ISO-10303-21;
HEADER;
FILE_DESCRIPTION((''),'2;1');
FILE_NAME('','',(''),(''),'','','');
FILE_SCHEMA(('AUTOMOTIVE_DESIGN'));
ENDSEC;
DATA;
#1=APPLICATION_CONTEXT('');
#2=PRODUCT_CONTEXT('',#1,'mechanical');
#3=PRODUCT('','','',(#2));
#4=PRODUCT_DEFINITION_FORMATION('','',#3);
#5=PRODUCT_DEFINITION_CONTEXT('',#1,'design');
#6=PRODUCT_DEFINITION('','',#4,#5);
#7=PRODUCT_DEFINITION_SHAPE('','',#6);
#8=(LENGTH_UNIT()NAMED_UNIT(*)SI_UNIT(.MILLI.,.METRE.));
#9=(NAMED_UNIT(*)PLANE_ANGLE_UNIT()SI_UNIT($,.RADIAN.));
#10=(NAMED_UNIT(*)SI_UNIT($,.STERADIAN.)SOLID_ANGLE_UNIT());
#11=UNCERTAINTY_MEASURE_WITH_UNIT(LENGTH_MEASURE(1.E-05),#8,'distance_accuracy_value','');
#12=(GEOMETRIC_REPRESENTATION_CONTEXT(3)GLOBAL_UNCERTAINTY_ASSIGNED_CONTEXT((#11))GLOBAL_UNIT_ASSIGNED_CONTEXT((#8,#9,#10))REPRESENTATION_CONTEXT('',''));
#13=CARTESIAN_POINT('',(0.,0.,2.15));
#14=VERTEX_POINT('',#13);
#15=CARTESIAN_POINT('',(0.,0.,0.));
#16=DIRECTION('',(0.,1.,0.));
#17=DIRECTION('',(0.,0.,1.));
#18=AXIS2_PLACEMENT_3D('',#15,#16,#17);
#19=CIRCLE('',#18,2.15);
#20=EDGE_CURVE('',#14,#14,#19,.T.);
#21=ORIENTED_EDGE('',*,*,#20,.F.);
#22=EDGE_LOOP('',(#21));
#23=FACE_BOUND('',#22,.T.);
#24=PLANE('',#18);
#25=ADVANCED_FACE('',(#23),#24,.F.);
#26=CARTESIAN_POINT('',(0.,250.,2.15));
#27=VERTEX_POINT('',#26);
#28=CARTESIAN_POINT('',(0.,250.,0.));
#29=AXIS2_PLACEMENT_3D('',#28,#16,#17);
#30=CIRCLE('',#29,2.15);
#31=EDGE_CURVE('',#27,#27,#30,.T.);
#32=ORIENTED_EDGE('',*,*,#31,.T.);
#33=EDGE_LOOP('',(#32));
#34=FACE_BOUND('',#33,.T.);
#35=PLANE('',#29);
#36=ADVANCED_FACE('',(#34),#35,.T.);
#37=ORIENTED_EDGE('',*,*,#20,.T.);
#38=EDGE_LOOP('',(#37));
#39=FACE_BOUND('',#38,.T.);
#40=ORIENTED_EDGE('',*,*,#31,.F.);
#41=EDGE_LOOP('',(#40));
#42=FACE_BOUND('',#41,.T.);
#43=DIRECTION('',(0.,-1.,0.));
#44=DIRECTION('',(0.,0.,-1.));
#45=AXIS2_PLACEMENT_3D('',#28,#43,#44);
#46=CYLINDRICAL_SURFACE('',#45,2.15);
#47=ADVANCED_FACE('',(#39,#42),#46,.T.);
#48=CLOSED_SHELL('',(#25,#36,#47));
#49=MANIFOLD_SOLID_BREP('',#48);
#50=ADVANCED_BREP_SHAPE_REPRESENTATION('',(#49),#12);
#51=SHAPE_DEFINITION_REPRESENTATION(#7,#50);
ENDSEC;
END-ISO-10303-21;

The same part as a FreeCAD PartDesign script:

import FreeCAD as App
import Part
import Sketcher
from FreeCAD import Vector

doc = App.newDocument("Part")
body = doc.addObject("PartDesign::Body", "Body")

# Sketch on XZ plane
sketch1 = body.newObject("Sketcher::SketchObject", "Sketch")
sketch1.AttachmentSupport = (doc.getObject("XZ_Plane"), [""])
sketch1.MapMode = "FlatFace"
sketch1.addGeometry(Part.Circle(Vector(0, 0, 0), Vector(0, 0, 1), 2.1), False)
sketch1.addConstraint([
    Sketcher.Constraint("Coincident", 0, 3, -1, 1),
    Sketcher.Constraint("Diameter", 0, 4.3),
])
pad1 = body.newObject("PartDesign::Pad", "Pad")
pad1.Profile = sketch1
pad1.Length = 250
pad1.Reversed = True

doc.recompute()
